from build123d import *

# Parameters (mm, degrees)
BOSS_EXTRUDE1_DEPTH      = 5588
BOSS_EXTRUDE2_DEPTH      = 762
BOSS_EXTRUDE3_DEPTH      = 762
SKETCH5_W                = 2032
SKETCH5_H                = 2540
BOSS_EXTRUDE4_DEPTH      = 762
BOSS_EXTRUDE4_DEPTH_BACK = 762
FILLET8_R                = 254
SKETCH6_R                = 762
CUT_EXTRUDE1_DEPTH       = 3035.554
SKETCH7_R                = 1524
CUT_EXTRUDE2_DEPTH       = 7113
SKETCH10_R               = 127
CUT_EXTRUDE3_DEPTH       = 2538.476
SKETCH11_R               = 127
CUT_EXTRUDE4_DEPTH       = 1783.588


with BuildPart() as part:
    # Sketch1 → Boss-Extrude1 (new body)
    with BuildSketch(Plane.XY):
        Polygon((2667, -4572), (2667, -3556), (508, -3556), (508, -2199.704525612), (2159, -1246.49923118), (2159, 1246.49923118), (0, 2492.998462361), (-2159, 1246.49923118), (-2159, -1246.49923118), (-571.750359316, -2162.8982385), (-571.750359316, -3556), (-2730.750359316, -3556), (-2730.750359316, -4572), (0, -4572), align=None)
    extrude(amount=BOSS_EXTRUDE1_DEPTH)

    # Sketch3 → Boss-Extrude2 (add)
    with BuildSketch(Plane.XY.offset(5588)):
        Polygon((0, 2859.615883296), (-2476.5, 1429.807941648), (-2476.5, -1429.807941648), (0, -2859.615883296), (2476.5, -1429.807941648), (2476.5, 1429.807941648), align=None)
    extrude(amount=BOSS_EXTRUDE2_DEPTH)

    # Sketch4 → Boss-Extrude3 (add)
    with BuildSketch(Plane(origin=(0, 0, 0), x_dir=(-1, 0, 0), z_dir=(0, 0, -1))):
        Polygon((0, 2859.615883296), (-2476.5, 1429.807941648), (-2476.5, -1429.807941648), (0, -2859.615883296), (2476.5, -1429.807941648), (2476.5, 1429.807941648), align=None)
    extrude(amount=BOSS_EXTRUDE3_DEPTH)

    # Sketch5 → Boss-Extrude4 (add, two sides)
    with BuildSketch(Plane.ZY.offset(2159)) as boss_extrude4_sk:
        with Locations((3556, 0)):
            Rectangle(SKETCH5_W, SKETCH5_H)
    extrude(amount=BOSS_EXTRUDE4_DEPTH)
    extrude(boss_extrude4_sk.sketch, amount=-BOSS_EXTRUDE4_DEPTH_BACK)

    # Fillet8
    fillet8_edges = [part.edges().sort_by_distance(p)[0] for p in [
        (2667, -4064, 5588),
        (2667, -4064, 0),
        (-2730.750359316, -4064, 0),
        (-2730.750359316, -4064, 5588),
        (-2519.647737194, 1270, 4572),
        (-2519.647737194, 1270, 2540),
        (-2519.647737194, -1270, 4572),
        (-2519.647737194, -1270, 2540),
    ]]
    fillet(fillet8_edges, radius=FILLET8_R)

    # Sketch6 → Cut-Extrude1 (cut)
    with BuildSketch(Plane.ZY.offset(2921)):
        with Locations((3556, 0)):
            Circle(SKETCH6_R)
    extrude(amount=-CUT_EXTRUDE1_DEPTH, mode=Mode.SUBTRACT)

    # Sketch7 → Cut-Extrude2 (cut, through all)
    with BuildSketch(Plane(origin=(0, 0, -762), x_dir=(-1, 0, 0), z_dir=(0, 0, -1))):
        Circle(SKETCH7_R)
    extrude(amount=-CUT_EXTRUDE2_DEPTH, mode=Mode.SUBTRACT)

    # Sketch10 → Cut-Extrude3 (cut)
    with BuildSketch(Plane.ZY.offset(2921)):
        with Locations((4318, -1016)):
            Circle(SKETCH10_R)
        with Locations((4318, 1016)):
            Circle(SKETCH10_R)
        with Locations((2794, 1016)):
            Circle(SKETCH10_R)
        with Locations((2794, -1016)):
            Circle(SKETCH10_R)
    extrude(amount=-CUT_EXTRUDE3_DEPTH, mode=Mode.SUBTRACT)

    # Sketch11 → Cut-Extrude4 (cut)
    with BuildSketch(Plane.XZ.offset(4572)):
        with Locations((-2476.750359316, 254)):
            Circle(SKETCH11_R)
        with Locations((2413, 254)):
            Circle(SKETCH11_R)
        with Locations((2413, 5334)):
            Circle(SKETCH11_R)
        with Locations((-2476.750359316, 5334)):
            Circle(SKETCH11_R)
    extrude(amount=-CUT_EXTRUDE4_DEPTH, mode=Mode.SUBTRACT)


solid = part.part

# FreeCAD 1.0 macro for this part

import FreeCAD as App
import Part
import Sketcher
from FreeCAD import Vector
Q = App.Units.Quantity


def edges_at(feature, points):
    """Names of the edges that pass closest to the given points."""
    edges = feature.Shape.Edges
    near = lambda p: min(range(len(edges)), key=lambda i: edges[i].distToShape(Part.Vertex(*p))[0])
    return sorted({f"Edge{near(p) + 1}" for p in points})

doc = App.newDocument("Part")
body = doc.addObject("PartDesign::Body", "Body")

sketch1 = doc.addObject("Sketcher::SketchObject", "Sketch")
body.addObject(sketch1)
sketch1.AttachmentSupport = (doc.XY_Plane, [""])
sketch1.MapMode = "FlatFace"
sketch1.addGeometry(Part.LineSegment(Vector(2667, -4572, 0), Vector(2667, -3556, 0)), False)
sketch1.addGeometry(Part.LineSegment(Vector(2667, -3556, 0), Vector(508, -3556, 0)), False)
sketch1.addGeometry(Part.LineSegment(Vector(508, -3556, 0), Vector(508, -2200, 0)), False)
sketch1.addGeometry(Part.LineSegment(Vector(508, -2200, 0), Vector(2159, -1246, 0)), False)
sketch1.addGeometry(Part.LineSegment(Vector(2159, -1246, 0), Vector(2159, 1246, 0)), False)
sketch1.addGeometry(Part.LineSegment(Vector(2159, 1246, 0), Vector(0, 2493, 0)), False)
sketch1.addGeometry(Part.LineSegment(Vector(0, 2493, 0), Vector(-2159, 1246, 0)), False)
sketch1.addGeometry(Part.LineSegment(Vector(-2159, 1246, 0), Vector(-2159, -1246, 0)), False)
sketch1.addGeometry(Part.LineSegment(Vector(-2159, -1246, 0), Vector(-572, -2163, 0)), False)
sketch1.addGeometry(Part.LineSegment(Vector(-572, -2163, 0), Vector(-572, -3556, 0)), False)
sketch1.addGeometry(Part.LineSegment(Vector(-572, -3556, 0), Vector(-2731, -3556, 0)), False)
sketch1.addGeometry(Part.LineSegment(Vector(-2731, -3556, 0), Vector(-2731, -4572, 0)), False)
sketch1.addGeometry(Part.LineSegment(Vector(-2731, -4572, 0), Vector(2667, -4572, 0)), False)
sketch1.addConstraint(Sketcher.Constraint("Coincident", 0, 2, 1, 1))
sketch1.addConstraint(Sketcher.Constraint("Coincident", 1, 2, 2, 1))
sketch1.addConstraint(Sketcher.Constraint("Coincident", 2, 2, 3, 1))
sketch1.addConstraint(Sketcher.Constraint("Coincident", 3, 2, 4, 1))
sketch1.addConstraint(Sketcher.Constraint("Coincident", 4, 2, 5, 1))
sketch1.addConstraint(Sketcher.Constraint("Coincident", 5, 2, 6, 1))
sketch1.addConstraint(Sketcher.Constraint("Coincident", 6, 2, 7, 1))
sketch1.addConstraint(Sketcher.Constraint("Coincident", 7, 2, 8, 1))
sketch1.addConstraint(Sketcher.Constraint("Coincident", 8, 2, 9, 1))
sketch1.addConstraint(Sketcher.Constraint("Coincident", 9, 2, 10, 1))
sketch1.addConstraint(Sketcher.Constraint("Coincident", 10, 2, 11, 1))
sketch1.addConstraint(Sketcher.Constraint("Coincident", 11, 2, 12, 1))
sketch1.addConstraint(Sketcher.Constraint("Coincident", 12, 2, 0, 1))
sketch1.addConstraint(Sketcher.Constraint("Vertical", 0))
sketch1.addConstraint(Sketcher.Constraint("Horizontal", 1))
sketch1.addConstraint(Sketcher.Constraint("Vertical", 2))
sketch1.addConstraint(Sketcher.Constraint("Vertical", 4))
sketch1.addConstraint(Sketcher.Constraint("Vertical", 7))
sketch1.addConstraint(Sketcher.Constraint("Vertical", 9))
sketch1.addConstraint(Sketcher.Constraint("Horizontal", 10))
sketch1.addConstraint(Sketcher.Constraint("Vertical", 11))
sketch1.addConstraint(Sketcher.Constraint("Horizontal", 12))
sketch1.addConstraint(Sketcher.Constraint("Symmetric", 3, 2, 6, 2, -1, 1))
sketch1.addConstraint(Sketcher.Constraint("PointOnObject", 5, 2, -2))
sketch1.addConstraint(Sketcher.Constraint("Parallel", 3, 6))
sketch1.addConstraint(Sketcher.Constraint("Parallel", 5, 8))
sketch1.addConstraint(Sketcher.Constraint("Horizontal", 4, 2, 6, 2))
sketch1.addConstraint(Sketcher.Constraint("Horizontal", 3, 2, 7, 2))
sketch1.addConstraint(Sketcher.Constraint("Horizontal", 1, 2, 9, 2))
sketch1.addConstraint(Sketcher.Constraint("Equal", 1, 10))
sketch1.addConstraint(Sketcher.Constraint("DistanceX", 1, 2, 1, 1, Q("85 in")))
sketch1.addConstraint(Sketcher.Constraint("DistanceY", 0, 1, 0, 2, Q("40 in")))
sketch1.addConstraint(Sketcher.Constraint("DistanceX", -1, 1, 0, 2, Q("105 in")))
sketch1.addConstraint(Sketcher.Constraint("DistanceY", 0, 2, -1, 1, Q("140 in")))
sketch1.addConstraint(Sketcher.Constraint("DistanceX", -1, 1, 3, 2, Q("85 in")))
sketch1.addConstraint(Sketcher.Constraint("Angle", 3, Q("30 deg")))
sketch1.addConstraint(Sketcher.Constraint("DistanceX", 12, 1, 12, 2, 5397.750359))
sketch1.addConstraint(Sketcher.Constraint("DistanceY", 9, 2, 9, 1, 1393.101762))
pad1 = doc.addObject("PartDesign::Pad", "Pad")
body.addObject(pad1)
pad1.Profile = sketch1
pad1.Length = Q("220 in")

sketch2 = doc.addObject("Sketcher::SketchObject", "Sketch001")
body.addObject(sketch2)
sketch2.AttachmentSupport = (doc.XY_Plane, [""])
sketch2.MapMode = "FlatFace"
sketch2.AttachmentOffset = App.Placement(Vector(0, 0, 220 * 25.4), App.Rotation())
sketch2.addGeometry(Part.LineSegment(Vector(0, 2860, 0), Vector(-2476, 1430, 0)), False)
sketch2.addGeometry(Part.LineSegment(Vector(-2476, 1430, 0), Vector(-2476, -1430, 0)), False)
sketch2.addGeometry(Part.LineSegment(Vector(-2476, -1430, 0), Vector(0, -2860, 0)), False)
sketch2.addGeometry(Part.LineSegment(Vector(0, -2860, 0), Vector(2476, -1430, 0)), False)
sketch2.addGeometry(Part.LineSegment(Vector(2476, -1430, 0), Vector(2476, 1430, 0)), False)
sketch2.addGeometry(Part.LineSegment(Vector(2476, 1430, 0), Vector(0, 2860, 0)), False)
sketch2.addConstraint(Sketcher.Constraint("Coincident", 0, 2, 1, 1))
sketch2.addConstraint(Sketcher.Constraint("Coincident", 1, 2, 2, 1))
sketch2.addConstraint(Sketcher.Constraint("Coincident", 2, 2, 3, 1))
sketch2.addConstraint(Sketcher.Constraint("Coincident", 3, 2, 4, 1))
sketch2.addConstraint(Sketcher.Constraint("Coincident", 4, 2, 5, 1))
sketch2.addConstraint(Sketcher.Constraint("Coincident", 5, 2, 0, 1))
sketch2.addConstraint(Sketcher.Constraint("Vertical", 1))
sketch2.addConstraint(Sketcher.Constraint("Vertical", 4))
sketch2.addConstraint(Sketcher.Constraint("Symmetric", 0, 2, 3, 2, -1, 1))
sketch2.addConstraint(Sketcher.Constraint("Symmetric", 2, 2, 5, 2, -1, 1))
sketch2.addConstraint(Sketcher.Constraint("PointOnObject", 2, 2, -2))
sketch2.addConstraint(Sketcher.Constraint("Parallel", 2, 5))
sketch2.addConstraint(Sketcher.Constraint("Horizontal", 1, 2, 3, 2))
sketch2.addConstraint(Sketcher.Constraint("Angle", 0, Q("-150 deg")))
sketch2.addConstraint(Sketcher.Constraint("DistanceX", 1, 2, 3, 2, Q("195 in")))
sketch2.addConstraint(Sketcher.Constraint("DistanceY", 1, 2, 1, 1, 2859.615883))
pad2 = doc.addObject("PartDesign::Pad", "Pad001")
body.addObject(pad2)
pad2.Profile = sketch2
pad2.Length = Q("30 in")

sketch3 = doc.addObject("Sketcher::SketchObject", "Sketch002")
body.addObject(sketch3)
sketch3.AttachmentSupport = (doc.XY_Plane, [""])
sketch3.MapMode = "FlatFace"
sketch3.addGeometry(Part.LineSegment(Vector(0, 2860, 0), Vector(2476, 1430, 0)), False)
sketch3.addGeometry(Part.LineSegment(Vector(2476, 1430, 0), Vector(2476, -1430, 0)), False)
sketch3.addGeometry(Part.LineSegment(Vector(2476, -1430, 0), Vector(0, -2860, 0)), False)
sketch3.addGeometry(Part.LineSegment(Vector(0, -2860, 0), Vector(-2476, -1430, 0)), False)
sketch3.addGeometry(Part.LineSegment(Vector(-2476, -1430, 0), Vector(-2476, 1430, 0)), False)
sketch3.addGeometry(Part.LineSegment(Vector(-2476, 1430, 0), Vector(0, 2860, 0)), False)
sketch3.addConstraint(Sketcher.Constraint("Coincident", 0, 2, 1, 1))
sketch3.addConstraint(Sketcher.Constraint("Coincident", 1, 2, 2, 1))
sketch3.addConstraint(Sketcher.Constraint("Coincident", 2, 2, 3, 1))
sketch3.addConstraint(Sketcher.Constraint("Coincident", 3, 2, 4, 1))
sketch3.addConstraint(Sketcher.Constraint("Coincident", 4, 2, 5, 1))
sketch3.addConstraint(Sketcher.Constraint("Coincident", 5, 2, 0, 1))
sketch3.addConstraint(Sketcher.Constraint("Vertical", 1))
sketch3.addConstraint(Sketcher.Constraint("Vertical", 4))
sketch3.addConstraint(Sketcher.Constraint("Symmetric", 0, 2, 3, 2, -1, 1))
sketch3.addConstraint(Sketcher.Constraint("Symmetric", 2, 2, 5, 2, -1, 1))
sketch3.addConstraint(Sketcher.Constraint("PointOnObject", 2, 2, -2))
sketch3.addConstraint(Sketcher.Constraint("Parallel", 2, 5))
sketch3.addConstraint(Sketcher.Constraint("Horizontal", 1, 2, 3, 2))
sketch3.addConstraint(Sketcher.Constraint("Angle", 0, Q("-30 deg")))
sketch3.addConstraint(Sketcher.Constraint("DistanceX", 3, 2, 1, 2, Q("195 in")))
sketch3.addConstraint(Sketcher.Constraint("DistanceY", 1, 2, 1, 1, 2859.615883))
pad3 = doc.addObject("PartDesign::Pad", "Pad002")
body.addObject(pad3)
pad3.Profile = sketch3
pad3.Length = Q("30 in")
pad3.Reversed = True

sketch4 = doc.addObject("Sketcher::SketchObject", "Sketch003")
body.addObject(sketch4)
sketch4.AttachmentSupport = (doc.YZ_Plane, [""])
sketch4.MapMode = "FlatFace"
sketch4.AttachmentOffset = App.Placement(Vector(0, 0, -85 * 25.4), App.Rotation())
sketch4.addGeometry(Part.LineSegment(Vector(1270, 2540, 0), Vector(-1270, 2540, 0)), False)
sketch4.addGeometry(Part.LineSegment(Vector(-1270, 2540, 0), Vector(-1270, 4572, 0)), False)
sketch4.addGeometry(Part.LineSegment(Vector(-1270, 4572, 0), Vector(1270, 4572, 0)), False)
sketch4.addGeometry(Part.LineSegment(Vector(1270, 4572, 0), Vector(1270, 2540, 0)), False)
sketch4.addConstraint(Sketcher.Constraint("Coincident", 0, 2, 1, 1))
sketch4.addConstraint(Sketcher.Constraint("Coincident", 1, 2, 2, 1))
sketch4.addConstraint(Sketcher.Constraint("Coincident", 2, 2, 3, 1))
sketch4.addConstraint(Sketcher.Constraint("Coincident", 3, 2, 0, 1))
sketch4.addConstraint(Sketcher.Constraint("Horizontal", 0))
sketch4.addConstraint(Sketcher.Constraint("Vertical", 1))
sketch4.addConstraint(Sketcher.Constraint("Horizontal", 2))
sketch4.addConstraint(Sketcher.Constraint("Vertical", 3))
sketch4.addConstraint(Sketcher.Constraint("DistanceX", 0, 2, 0, 1, Q("100 in")))
sketch4.addConstraint(Sketcher.Constraint("DistanceY", 1, 1, 1, 2, Q("80 in")))
sketch4.addConstraint(Sketcher.Constraint("DistanceX", 0, 2, -1, 1, Q("50 in")))
sketch4.addConstraint(Sketcher.Constraint("DistanceY", -1, 1, 0, 2, Q("100 in")))
pad4 = doc.addObject("PartDesign::Pad", "Pad003")
body.addObject(pad4)
pad4.Profile = sketch4
pad4.Type = "TwoLengths"
pad4.Length = Q("30 in")
pad4.Length2 = Q("30 in")
pad4.Reversed = True
doc.recompute()

fillet = doc.addObject("PartDesign::Fillet", "Fillet")
body.addObject(fillet)
fillet.Base = (pad4, edges_at(pad4, [
    (2667, -4064, 5588),
    (2667, -4064, 0),
    (-2730.75, -4064, 0),
    (-2730.75, -4064, 5588),
    (-2519.648, 1270, 4572),
    (-2519.648, 1270, 2540),
    (-2519.648, -1270, 4572),
    (-2519.648, -1270, 2540),
]))
fillet.Radius = Q("10 in")

sketch5 = doc.addObject("Sketcher::SketchObject", "Sketch004")
body.addObject(sketch5)
sketch5.AttachmentSupport = (doc.YZ_Plane, [""])
sketch5.MapMode = "FlatFace"
sketch5.AttachmentOffset = App.Placement(Vector(0, 0, -115 * 25.4), App.Rotation())
sketch5.addGeometry(Part.Circle(Vector(0, 3556, 0), Vector(0, 0, 1), 762), False)
sketch5.addConstraint(Sketcher.Constraint("PointOnObject", 0, 3, -2))
sketch5.addConstraint(Sketcher.Constraint("Diameter", 0, Q("60 in")))
sketch5.addConstraint(Sketcher.Constraint("DistanceY", -1, 1, 0, 3, Q("140 in")))
pocket1 = doc.addObject("PartDesign::Pocket", "Pocket")
body.addObject(pocket1)
pocket1.Profile = sketch5
pocket1.Length = Q("119.51 in")
pocket1.Reversed = True

sketch6 = doc.addObject("Sketcher::SketchObject", "Sketch005")
body.addObject(sketch6)
sketch6.AttachmentSupport = (doc.XY_Plane, [""])
sketch6.MapMode = "FlatFace"
sketch6.AttachmentOffset = App.Placement(Vector(0, 0, -30 * 25.4), App.Rotation())
sketch6.addGeometry(Part.Circle(Vector(0, 0, 0), Vector(0, 0, 1), 1524), False)
sketch6.addConstraint(Sketcher.Constraint("Coincident", 0, 3, -1, 1))
sketch6.addConstraint(Sketcher.Constraint("Diameter", 0, Q("120 in")))
pocket2 = doc.addObject("PartDesign::Pocket", "Pocket001")
body.addObject(pocket2)
pocket2.Profile = sketch6
pocket2.Type = "ThroughAll"
pocket2.Reversed = True

sketch7 = doc.addObject("Sketcher::SketchObject", "Sketch006")
body.addObject(sketch7)
sketch7.AttachmentSupport = (doc.YZ_Plane, [""])
sketch7.MapMode = "FlatFace"
sketch7.AttachmentOffset = App.Placement(Vector(0, 0, -115 * 25.4), App.Rotation())
sketch7.addGeometry(Part.Circle(Vector(-1016, 4318, 0), Vector(0, 0, 1), 127), False)
sketch7.addGeometry(Part.Circle(Vector(1016, 4318, 0), Vector(0, 0, 1), 127), False)
sketch7.addGeometry(Part.Circle(Vector(1016, 2794, 0), Vector(0, 0, 1), 127), False)
sketch7.addGeometry(Part.Circle(Vector(-1016, 2794, 0), Vector(0, 0, 1), 127), False)
sketch7.addConstraint(Sketcher.Constraint("Equal", 0, 1))
sketch7.addConstraint(Sketcher.Constraint("Equal", 1, 2))
sketch7.addConstraint(Sketcher.Constraint("Equal", 2, 3))
sketch7.addConstraint(Sketcher.Constraint("Symmetric", 0, 3, 1, 3, -2))
sketch7.addConstraint(Sketcher.Constraint("Symmetric", 2, 3, 3, 3, -2))
sketch7.addConstraint(Sketcher.Constraint("Vertical", 1, 3, 2, 3))
sketch7.addConstraint(Sketcher.Constraint("Diameter", 0, Q("10 in")))
sketch7.addConstraint(Sketcher.Constraint("DistanceX", 0, 3, -1, 1, Q("40 in")))
sketch7.addConstraint(Sketcher.Constraint("DistanceY", -1, 1, 0, 3, Q("170 in")))
sketch7.addConstraint(Sketcher.Constraint("DistanceY", -1, 1, 2, 3, Q("110 in")))
pocket3 = doc.addObject("PartDesign::Pocket", "Pocket002")
body.addObject(pocket3)
pocket3.Profile = sketch7
pocket3.Length = Q("99.94 in")
pocket3.Reversed = True

sketch8 = doc.addObject("Sketcher::SketchObject", "Sketch007")
body.addObject(sketch8)
sketch8.AttachmentSupport = (doc.XZ_Plane, [""])
sketch8.MapMode = "FlatFace"
sketch8.AttachmentOffset = App.Placement(Vector(0, 0, 180 * 25.4), App.Rotation())
sketch8.addGeometry(Part.Circle(Vector(-2477, 254, 0), Vector(0, 0, 1), 127), False)
sketch8.addGeometry(Part.Circle(Vector(2413, 254, 0), Vector(0, 0, 1), 127), False)
sketch8.addGeometry(Part.Circle(Vector(2413, 5334, 0), Vector(0, 0, 1), 127), False)
sketch8.addGeometry(Part.Circle(Vector(-2477, 5334, 0), Vector(0, 0, 1), 127), False)
sketch8.addConstraint(Sketcher.Constraint("Equal", 0, 1))
sketch8.addConstraint(Sketcher.Constraint("Equal", 1, 2))
sketch8.addConstraint(Sketcher.Constraint("Equal", 2, 3))
sketch8.addConstraint(Sketcher.Constraint("Horizontal", 0, 3, 1, 3))
sketch8.addConstraint(Sketcher.Constraint("Horizontal", 2, 3, 3, 3))
sketch8.addConstraint(Sketcher.Constraint("Vertical", 1, 3, 2, 3))
sketch8.addConstraint(Sketcher.Constraint("Vertical", 0, 3, 3, 3))
sketch8.addConstraint(Sketcher.Constraint("Diameter", 0, Q("10 in")))
sketch8.addConstraint(Sketcher.Constraint("DistanceY", -1, 1, 0, 3, Q("10 in")))
sketch8.addConstraint(Sketcher.Constraint("DistanceX", -1, 1, 1, 3, Q("95 in")))
sketch8.addConstraint(Sketcher.Constraint("DistanceY", -1, 1, 2, 3, Q("210 in")))
sketch8.addConstraint(Sketcher.Constraint("DistanceX", 0, 3, -1, 1, 2476.750359))
pocket4 = doc.addObject("PartDesign::Pocket", "Pocket003")
body.addObject(pocket4)
pocket4.Profile = sketch8
pocket4.Length = Q("70.22 in")

doc.recompute()
